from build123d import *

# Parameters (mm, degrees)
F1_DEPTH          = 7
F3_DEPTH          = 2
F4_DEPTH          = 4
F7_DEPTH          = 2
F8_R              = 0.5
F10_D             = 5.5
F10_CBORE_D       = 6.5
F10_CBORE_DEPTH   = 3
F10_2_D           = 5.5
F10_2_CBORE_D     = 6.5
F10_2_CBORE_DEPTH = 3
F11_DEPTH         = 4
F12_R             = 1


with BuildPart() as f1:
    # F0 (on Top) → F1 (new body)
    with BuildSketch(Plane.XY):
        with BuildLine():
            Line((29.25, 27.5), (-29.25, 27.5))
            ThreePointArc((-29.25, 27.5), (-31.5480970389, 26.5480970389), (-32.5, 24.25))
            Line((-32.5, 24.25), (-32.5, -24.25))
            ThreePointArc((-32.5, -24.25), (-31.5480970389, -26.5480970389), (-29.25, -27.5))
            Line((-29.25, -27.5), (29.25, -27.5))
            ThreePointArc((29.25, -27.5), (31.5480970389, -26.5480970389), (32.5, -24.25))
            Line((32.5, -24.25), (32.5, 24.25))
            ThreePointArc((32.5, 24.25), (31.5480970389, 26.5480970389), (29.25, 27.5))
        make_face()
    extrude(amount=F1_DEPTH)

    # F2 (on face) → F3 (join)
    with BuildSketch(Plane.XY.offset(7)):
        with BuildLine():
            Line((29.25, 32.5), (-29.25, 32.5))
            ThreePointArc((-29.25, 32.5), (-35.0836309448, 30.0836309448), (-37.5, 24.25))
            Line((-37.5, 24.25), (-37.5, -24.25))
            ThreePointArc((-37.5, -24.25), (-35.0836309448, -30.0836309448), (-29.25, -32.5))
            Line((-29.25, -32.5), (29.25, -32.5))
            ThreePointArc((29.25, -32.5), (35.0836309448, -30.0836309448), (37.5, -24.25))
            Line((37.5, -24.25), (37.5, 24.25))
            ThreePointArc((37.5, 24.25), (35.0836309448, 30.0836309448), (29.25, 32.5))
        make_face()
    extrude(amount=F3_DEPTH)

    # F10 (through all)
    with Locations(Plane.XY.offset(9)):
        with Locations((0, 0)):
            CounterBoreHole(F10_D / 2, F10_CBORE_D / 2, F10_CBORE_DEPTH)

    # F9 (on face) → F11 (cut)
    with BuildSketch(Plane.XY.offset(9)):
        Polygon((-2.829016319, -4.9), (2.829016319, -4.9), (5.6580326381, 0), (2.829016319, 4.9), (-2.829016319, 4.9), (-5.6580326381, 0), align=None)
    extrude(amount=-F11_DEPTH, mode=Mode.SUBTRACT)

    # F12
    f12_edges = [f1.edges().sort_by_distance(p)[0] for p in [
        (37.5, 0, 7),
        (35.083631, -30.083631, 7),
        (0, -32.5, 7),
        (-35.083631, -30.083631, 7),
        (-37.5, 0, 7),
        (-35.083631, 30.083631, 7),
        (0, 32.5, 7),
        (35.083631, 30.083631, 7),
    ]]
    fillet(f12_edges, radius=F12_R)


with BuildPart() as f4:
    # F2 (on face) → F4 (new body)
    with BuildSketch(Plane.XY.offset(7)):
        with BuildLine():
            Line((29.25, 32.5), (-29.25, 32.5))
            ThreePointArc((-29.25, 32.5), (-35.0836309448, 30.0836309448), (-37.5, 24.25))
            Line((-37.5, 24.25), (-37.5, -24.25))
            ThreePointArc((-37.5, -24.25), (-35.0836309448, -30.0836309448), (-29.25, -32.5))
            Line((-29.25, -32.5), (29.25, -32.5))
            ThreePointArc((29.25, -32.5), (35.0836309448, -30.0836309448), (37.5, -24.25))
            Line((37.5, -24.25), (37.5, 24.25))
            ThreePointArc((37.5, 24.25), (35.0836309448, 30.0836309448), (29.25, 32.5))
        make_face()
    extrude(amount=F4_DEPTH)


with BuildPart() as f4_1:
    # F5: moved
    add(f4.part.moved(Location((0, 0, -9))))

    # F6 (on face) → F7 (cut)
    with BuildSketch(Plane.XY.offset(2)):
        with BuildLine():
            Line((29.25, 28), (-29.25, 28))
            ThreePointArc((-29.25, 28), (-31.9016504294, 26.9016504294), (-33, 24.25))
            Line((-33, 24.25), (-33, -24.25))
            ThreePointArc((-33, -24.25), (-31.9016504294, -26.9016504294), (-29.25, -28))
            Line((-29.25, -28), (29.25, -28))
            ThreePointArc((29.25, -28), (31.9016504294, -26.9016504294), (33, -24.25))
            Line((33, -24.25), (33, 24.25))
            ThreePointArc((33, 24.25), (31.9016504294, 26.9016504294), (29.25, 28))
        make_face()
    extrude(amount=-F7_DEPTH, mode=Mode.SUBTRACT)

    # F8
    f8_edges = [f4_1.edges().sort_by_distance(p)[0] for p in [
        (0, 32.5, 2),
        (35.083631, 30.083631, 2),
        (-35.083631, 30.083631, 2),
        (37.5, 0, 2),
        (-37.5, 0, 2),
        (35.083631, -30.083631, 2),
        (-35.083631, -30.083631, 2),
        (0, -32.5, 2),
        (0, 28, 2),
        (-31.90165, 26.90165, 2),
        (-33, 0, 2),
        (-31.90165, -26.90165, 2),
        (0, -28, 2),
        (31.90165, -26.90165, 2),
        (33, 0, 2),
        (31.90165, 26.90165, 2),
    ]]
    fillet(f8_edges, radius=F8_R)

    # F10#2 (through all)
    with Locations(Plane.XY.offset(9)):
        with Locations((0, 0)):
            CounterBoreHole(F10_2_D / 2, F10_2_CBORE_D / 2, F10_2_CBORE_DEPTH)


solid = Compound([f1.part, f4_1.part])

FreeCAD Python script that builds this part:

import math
import FreeCAD as App
import Part
import Sketcher
from FreeCAD import Vector
Q = App.Units.Quantity


def edges_at(feature, points):
    """Names of the edges that pass closest to the given points."""
    edges = feature.Shape.Edges
    near = lambda p: min(range(len(edges)), key=lambda i: edges[i].distToShape(Part.Vertex(*p))[0])
    return sorted({f"Edge{near(p) + 1}" for p in points})

doc = App.newDocument("Part")
body = doc.addObject("PartDesign::Body", "Body")

# Sketch on XY plane
sketch1 = body.newObject("Sketcher::SketchObject", "Sketch")
sketch1.AttachmentSupport = (doc.getObject("XY_Plane"), [""])
sketch1.MapMode = "FlatFace"
sketch1.addGeometry([
    Part.LineSegment(Vector(29.2, 27.5, 0), Vector(-29.2, 27.5, 0)),  # 0
    Part.ArcOfCircle(Part.Circle(Vector(-29.2, 24.2, 0), Vector(0, 0, 1), 3.2), math.radians(90), math.radians(180)),  # 1
    Part.LineSegment(Vector(-32.5, 24.2, 0), Vector(-32.5, -24.2, 0)),  # 2
    Part.ArcOfCircle(Part.Circle(Vector(-29.2, -24.2, 0), Vector(0, 0, 1), 3.2), math.radians(180), math.radians(270)),  # 3
    Part.LineSegment(Vector(-29.2, -27.5, 0), Vector(29.2, -27.5, 0)),  # 4
    Part.ArcOfCircle(Part.Circle(Vector(29.2, -24.2, 0), Vector(0, 0, 1), 3.2), math.radians(-90), math.radians(0)),  # 5
    Part.LineSegment(Vector(32.5, -24.2, 0), Vector(32.5, 24.2, 0)),  # 6
    Part.ArcOfCircle(Part.Circle(Vector(29.2, 24.2, 0), Vector(0, 0, 1), 3.2), math.radians(0), math.radians(90)),  # 7
], False)
sketch1.addConstraint([
    Sketcher.Constraint("Tangent", 0, 2, 1, 1),
    Sketcher.Constraint("Tangent", 1, 2, 2, 1),
    Sketcher.Constraint("Tangent", 2, 2, 3, 1),
    Sketcher.Constraint("Tangent", 3, 2, 4, 1),
    Sketcher.Constraint("Tangent", 4, 2, 5, 1),
    Sketcher.Constraint("Tangent", 5, 2, 6, 1),
    Sketcher.Constraint("Tangent", 6, 2, 7, 1),
    Sketcher.Constraint("Tangent", 7, 2, 0, 1),
    Sketcher.Constraint("Horizontal", 0),
    Sketcher.Constraint("Vertical", 2),
    Sketcher.Constraint("Horizontal", 4),
    Sketcher.Constraint("Vertical", 6),
    Sketcher.Constraint("Equal", 1, 3),
    Sketcher.Constraint("Equal", 3, 5),
    Sketcher.Constraint("Equal", 5, 7),
    Sketcher.Constraint("Symmetric", 1, 3, 5, 3, -1, 1),
    Sketcher.Constraint("Radius", 1, 3.25),
    Sketcher.Constraint("DistanceX", 0, 2, 0, 1, 58.5),
    Sketcher.Constraint("DistanceY", 2, 2, 2, 1, 48.5),
])
pad1 = body.newObject("PartDesign::Pad", "Pad")
pad1.Profile = sketch1
pad1.Length = 7

# Sketch on XY plane
sketch2 = body.newObject("Sketcher::SketchObject", "Sketch001")
sketch2.AttachmentSupport = (doc.getObject("XY_Plane"), [""])
sketch2.MapMode = "FlatFace"
sketch2.AttachmentOffset = App.Placement(Vector(0, 0, 7), App.Rotation())
sketch2.addGeometry([
    Part.LineSegment(Vector(29, 32, 0), Vector(-29, 32, 0)),  # 0
    Part.ArcOfCircle(Part.Circle(Vector(-29, 24, 0), Vector(0, 0, 1), 8), math.radians(90), math.radians(180)),  # 1
    Part.LineSegment(Vector(-38, 24, 0), Vector(-38, -24, 0)),  # 2
    Part.ArcOfCircle(Part.Circle(Vector(-29, -24, 0), Vector(0, 0, 1), 8), math.radians(180), math.radians(270)),  # 3
    Part.LineSegment(Vector(-29, -32, 0), Vector(29, -32, 0)),  # 4
    Part.ArcOfCircle(Part.Circle(Vector(29, -24, 0), Vector(0, 0, 1), 8), math.radians(-90), math.radians(0)),  # 5
    Part.LineSegment(Vector(38, -24, 0), Vector(38, 24, 0)),  # 6
    Part.ArcOfCircle(Part.Circle(Vector(29, 24, 0), Vector(0, 0, 1), 8), math.radians(0), math.radians(90)),  # 7
], False)
sketch2.addConstraint([
    Sketcher.Constraint("Tangent", 0, 2, 1, 1),
    Sketcher.Constraint("Tangent", 1, 2, 2, 1),
    Sketcher.Constraint("Tangent", 2, 2, 3, 1),
    Sketcher.Constraint("Tangent", 3, 2, 4, 1),
    Sketcher.Constraint("Tangent", 4, 2, 5, 1),
    Sketcher.Constraint("Tangent", 5, 2, 6, 1),
    Sketcher.Constraint("Tangent", 6, 2, 7, 1),
    Sketcher.Constraint("Tangent", 7, 2, 0, 1),
    Sketcher.Constraint("Horizontal", 0),
    Sketcher.Constraint("Vertical", 2),
    Sketcher.Constraint("Horizontal", 4),
    Sketcher.Constraint("Vertical", 6),
    Sketcher.Constraint("Equal", 1, 3),
    Sketcher.Constraint("Equal", 3, 5),
    Sketcher.Constraint("Equal", 5, 7),
    Sketcher.Constraint("Symmetric", 1, 3, 5, 3, -1, 1),
    Sketcher.Constraint("Radius", 1, 8.25),
    Sketcher.Constraint("DistanceX", 0, 2, 0, 1, 58.5),
    Sketcher.Constraint("DistanceY", 2, 2, 2, 1, 48.5),
])
pad2 = body.newObject("PartDesign::Pad", "Pad001")
pad2.Profile = sketch2
pad2.Length = 2

# Sketch on XY plane
sketch3 = body.newObject("Sketcher::SketchObject", "Sketch002")
sketch3.AttachmentSupport = (doc.getObject("XY_Plane"), [""])
sketch3.MapMode = "FlatFace"
sketch3.AttachmentOffset = App.Placement(Vector(0, 0, 9), App.Rotation())
sketch3.addGeometry(Part.Circle(Vector(0, 0, 0), Vector(0, 0, 1), 2.8), False)
sketch3.addConstraint([
    Sketcher.Constraint("Coincident", 0, 3, -1, 1),
    Sketcher.Constraint("Diameter", 0, 5.5),
])
doc.recompute()
hole = body.newObject("PartDesign::Hole", "Hole")
hole.Profile = sketch3
hole.ThreadType = "None"
hole.Diameter = 5.5
hole.DepthType = "ThroughAll"
hole.HoleCutType = "Counterbore"
hole.HoleCutDiameter = 6.5
hole.HoleCutDepth = 3

# Sketch on XY plane
sketch4 = body.newObject("Sketcher::SketchObject", "Sketch003")
sketch4.AttachmentSupport = (doc.getObject("XY_Plane"), [""])
sketch4.MapMode = "FlatFace"
sketch4.AttachmentOffset = App.Placement(Vector(0, 0, 9), App.Rotation())
sketch4.addGeometry([
    Part.LineSegment(Vector(-3, -5, 0), Vector(3, -5, 0)),  # 0
    Part.LineSegment(Vector(3, -5, 0), Vector(6, 0, 0)),  # 1
    Part.LineSegment(Vector(6, 0, 0), Vector(3, 5, 0)),  # 2
    Part.LineSegment(Vector(3, 5, 0), Vector(-3, 5, 0)),  # 3
    Part.LineSegment(Vector(-3, 5, 0), Vector(-6, 0, 0)),  # 4
    Part.LineSegment(Vector(-6, 0, 0), Vector(-3, -5, 0)),  # 5
], False)
sketch4.addConstraint([
    Sketcher.Constraint("Coincident", 0, 2, 1, 1),
    Sketcher.Constraint("Coincident", 1, 2, 2, 1),
    Sketcher.Constraint("Coincident", 2, 2, 3, 1),
    Sketcher.Constraint("Coincident", 3, 2, 4, 1),
    Sketcher.Constraint("Coincident", 4, 2, 5, 1),
    Sketcher.Constraint("Coincident", 5, 2, 0, 1),
    Sketcher.Constraint("Horizontal", 0),
    Sketcher.Constraint("Horizontal", 3),
    Sketcher.Constraint("Symmetric", 0, 2, 3, 2, -1, 1),
    Sketcher.Constraint("Symmetric", 1, 2, 4, 2, -1, 1),
    Sketcher.Constraint("PointOnObject", 1, 2, -1),
    Sketcher.Constraint("Parallel", 2, 5),
    Sketcher.Constraint("Vertical", 0, 2, 2, 2),
    Sketcher.Constraint("Angle", 1, Q("60 deg")),
    Sketcher.Constraint("DistanceY", 0, 2, -1, 1, 4.9),
    Sketcher.Constraint("DistanceX", 0, 1, 0, 2, 5.658033),
])
pocket1 = body.newObject("PartDesign::Pocket", "Pocket")
pocket1.Profile = sketch4
pocket1.Length = 4
doc.recompute()

fillet = body.newObject("PartDesign::Fillet", "Fillet")
fillet.Base = (pocket1, edges_at(pocket1, [
    (37.5, 0, 7),
    (35.084, -30.084, 7),
    (0, -32.5, 7),
    (-35.084, -30.084, 7),
    (-37.5, 0, 7),
    (-35.084, 30.084, 7),
    (0, 32.5, 7),
    (35.084, 30.084, 7),
]))
fillet.Radius = 1
body2 = doc.addObject("PartDesign::Body", "Body001")

# Sketch on XY plane
sketch5 = body2.newObject("Sketcher::SketchObject", "Sketch004")
sketch5.AttachmentSupport = (doc.getObject("XY_Plane001"), [""])
sketch5.MapMode = "FlatFace"
sketch5.AttachmentOffset = App.Placement(Vector(0, 0, 7), App.Rotation())
sketch5.addGeometry([
    Part.LineSegment(Vector(29, 32, 0), Vector(-29, 32, 0)),  # 0
    Part.ArcOfCircle(Part.Circle(Vector(-29, 24, 0), Vector(0, 0, 1), 8), math.radians(90), math.radians(180)),  # 1
    Part.LineSegment(Vector(-38, 24, 0), Vector(-38, -24, 0)),  # 2
    Part.ArcOfCircle(Part.Circle(Vector(-29, -24, 0), Vector(0, 0, 1), 8), math.radians(180), math.radians(270)),  # 3
    Part.LineSegment(Vector(-29, -32, 0), Vector(29, -32, 0)),  # 4
    Part.ArcOfCircle(Part.Circle(Vector(29, -24, 0), Vector(0, 0, 1), 8), math.radians(-90), math.radians(0)),  # 5
    Part.LineSegment(Vector(38, -24, 0), Vector(38, 24, 0)),  # 6
    Part.ArcOfCircle(Part.Circle(Vector(29, 24, 0), Vector(0, 0, 1), 8), math.radians(0), math.radians(90)),  # 7
], False)
sketch5.addConstraint([
    Sketcher.Constraint("Tangent", 0, 2, 1, 1),
    Sketcher.Constraint("Tangent", 1, 2, 2, 1),
    Sketcher.Constraint("Tangent", 2, 2, 3, 1),
    Sketcher.Constraint("Tangent", 3, 2, 4, 1),
    Sketcher.Constraint("Tangent", 4, 2, 5, 1),
    Sketcher.Constraint("Tangent", 5, 2, 6, 1),
    Sketcher.Constraint("Tangent", 6, 2, 7, 1),
    Sketcher.Constraint("Tangent", 7, 2, 0, 1),
    Sketcher.Constraint("Horizontal", 0),
    Sketcher.Constraint("Vertical", 2),
    Sketcher.Constraint("Horizontal", 4),
    Sketcher.Constraint("Vertical", 6),
    Sketcher.Constraint("Equal", 1, 3),
    Sketcher.Constraint("Equal", 3, 5),
    Sketcher.Constraint("Equal", 5, 7),
    Sketcher.Constraint("Symmetric", 1, 3, 5, 3, -1, 1),
    Sketcher.Constraint("Radius", 1, 8.25),
    Sketcher.Constraint("DistanceX", 0, 2, 0, 1, 58.5),
    Sketcher.Constraint("DistanceY", 2, 2, 2, 1, 48.5),
])
pad3 = body2.newObject("PartDesign::Pad", "Pad002")
pad3.Profile = sketch5
pad3.Length = 4
body3 = doc.addObject("PartDesign::Body", "Body002")
doc.recompute()

body2.Placement = App.Placement(Vector(0, 0, -9), App.Rotation(Vector(0, 0, 1), 0))
boolean = body3.newObject("PartDesign::Boolean", "Boolean")
boolean.Type = "Fuse"
boolean.addObjects([body2])

# Sketch on XY plane
sketch6 = body3.newObject("Sketcher::SketchObject", "Sketch005")
sketch6.AttachmentSupport = (doc.getObject("XY_Plane002"), [""])
sketch6.MapMode = "FlatFace"
sketch6.AttachmentOffset = App.Placement(Vector(0, 0, 2), App.Rotation())
sketch6.addGeometry([
    Part.LineSegment(Vector(29.2, 28, 0), Vector(-29.2, 28, 0)),  # 0
    Part.ArcOfCircle(Part.Circle(Vector(-29.2, 24.2, 0), Vector(0, 0, 1), 3.8), math.radians(90), math.radians(180)),  # 1
    Part.LineSegment(Vector(-33, 24.2, 0), Vector(-33, -24.2, 0)),  # 2
    Part.ArcOfCircle(Part.Circle(Vector(-29.2, -24.2, 0), Vector(0, 0, 1), 3.8), math.radians(180), math.radians(270)),  # 3
    Part.LineSegment(Vector(-29.2, -28, 0), Vector(29.2, -28, 0)),  # 4
    Part.ArcOfCircle(Part.Circle(Vector(29.2, -24.2, 0), Vector(0, 0, 1), 3.8), math.radians(-90), math.radians(0)),  # 5
    Part.LineSegment(Vector(33, -24.2, 0), Vector(33, 24.2, 0)),  # 6
    Part.ArcOfCircle(Part.Circle(Vector(29.2, 24.2, 0), Vector(0, 0, 1), 3.8), math.radians(0), math.radians(90)),  # 7
], False)
sketch6.addConstraint([
    Sketcher.Constraint("Tangent", 0, 2, 1, 1),
    Sketcher.Constraint("Tangent", 1, 2, 2, 1),
    Sketcher.Constraint("Tangent", 2, 2, 3, 1),
    Sketcher.Constraint("Tangent", 3, 2, 4, 1),
    Sketcher.Constraint("Tangent", 4, 2, 5, 1),
    Sketcher.Constraint("Tangent", 5, 2, 6, 1),
    Sketcher.Constraint("Tangent", 6, 2, 7, 1),
    Sketcher.Constraint("Tangent", 7, 2, 0, 1),
    Sketcher.Constraint("Horizontal", 0),
    Sketcher.Constraint("Vertical", 2),
    Sketcher.Constraint("Horizontal", 4),
    Sketcher.Constraint("Vertical", 6),
    Sketcher.Constraint("Equal", 1, 3),
    Sketcher.Constraint("Equal", 3, 5),
    Sketcher.Constraint("Equal", 5, 7),
    Sketcher.Constraint("Symmetric", 1, 3, 5, 3, -1, 1),
    Sketcher.Constraint("Radius", 1, 3.75),
    Sketcher.Constraint("DistanceX", 0, 2, 0, 1, 58.5),
    Sketcher.Constraint("DistanceY", 2, 2, 2, 1, 48.5),
])
pocket2 = body3.newObject("PartDesign::Pocket", "Pocket001")
pocket2.Profile = sketch6
pocket2.Length = 2
doc.recompute()

fillet2 = body3.newObject("PartDesign::Fillet", "Fillet001")
fillet2.Base = (pocket2, edges_at(pocket2, [
    (0, 32.5, 2),
    (35.084, 30.084, 2),
    (-35.084, 30.084, 2),
    (37.5, 0, 2),
    (-37.5, 0, 2),
    (35.084, -30.084, 2),
    (-35.084, -30.084, 2),
    (0, -32.5, 2),
    (0, 28, 2),
    (-31.902, 26.902, 2),
    (-33, 0, 2),
    (-31.902, -26.902, 2),
    (0, -28, 2),
    (31.902, -26.902, 2),
    (33, 0, 2),
    (31.902, 26.902, 2),
]))
fillet2.Radius = 0.5

# Sketch on XY plane
sketch7 = body3.newObject("Sketcher::SketchObject", "Sketch006")
sketch7.AttachmentSupport = (doc.getObject("XY_Plane002"), [""])
sketch7.MapMode = "FlatFace"
sketch7.AttachmentOffset = App.Placement(Vector(0, 0, 9), App.Rotation())
sketch7.addGeometry(Part.Circle(Vector(0, 0, 0), Vector(0, 0, 1), 2.8), False)
sketch7.addConstraint([
    Sketcher.Constraint("Coincident", 0, 3, -1, 1),
    Sketcher.Constraint("Diameter", 0, 5.5),
])
doc.recompute()
hole2 = body3.newObject("PartDesign::Hole", "Hole001")
hole2.Profile = sketch7
hole2.ThreadType = "None"
hole2.Diameter = 5.5
hole2.DepthType = "ThroughAll"
hole2.HoleCutType = "Counterbore"
hole2.HoleCutDiameter = 6.5
hole2.HoleCutDepth = 3

doc.recompute()
